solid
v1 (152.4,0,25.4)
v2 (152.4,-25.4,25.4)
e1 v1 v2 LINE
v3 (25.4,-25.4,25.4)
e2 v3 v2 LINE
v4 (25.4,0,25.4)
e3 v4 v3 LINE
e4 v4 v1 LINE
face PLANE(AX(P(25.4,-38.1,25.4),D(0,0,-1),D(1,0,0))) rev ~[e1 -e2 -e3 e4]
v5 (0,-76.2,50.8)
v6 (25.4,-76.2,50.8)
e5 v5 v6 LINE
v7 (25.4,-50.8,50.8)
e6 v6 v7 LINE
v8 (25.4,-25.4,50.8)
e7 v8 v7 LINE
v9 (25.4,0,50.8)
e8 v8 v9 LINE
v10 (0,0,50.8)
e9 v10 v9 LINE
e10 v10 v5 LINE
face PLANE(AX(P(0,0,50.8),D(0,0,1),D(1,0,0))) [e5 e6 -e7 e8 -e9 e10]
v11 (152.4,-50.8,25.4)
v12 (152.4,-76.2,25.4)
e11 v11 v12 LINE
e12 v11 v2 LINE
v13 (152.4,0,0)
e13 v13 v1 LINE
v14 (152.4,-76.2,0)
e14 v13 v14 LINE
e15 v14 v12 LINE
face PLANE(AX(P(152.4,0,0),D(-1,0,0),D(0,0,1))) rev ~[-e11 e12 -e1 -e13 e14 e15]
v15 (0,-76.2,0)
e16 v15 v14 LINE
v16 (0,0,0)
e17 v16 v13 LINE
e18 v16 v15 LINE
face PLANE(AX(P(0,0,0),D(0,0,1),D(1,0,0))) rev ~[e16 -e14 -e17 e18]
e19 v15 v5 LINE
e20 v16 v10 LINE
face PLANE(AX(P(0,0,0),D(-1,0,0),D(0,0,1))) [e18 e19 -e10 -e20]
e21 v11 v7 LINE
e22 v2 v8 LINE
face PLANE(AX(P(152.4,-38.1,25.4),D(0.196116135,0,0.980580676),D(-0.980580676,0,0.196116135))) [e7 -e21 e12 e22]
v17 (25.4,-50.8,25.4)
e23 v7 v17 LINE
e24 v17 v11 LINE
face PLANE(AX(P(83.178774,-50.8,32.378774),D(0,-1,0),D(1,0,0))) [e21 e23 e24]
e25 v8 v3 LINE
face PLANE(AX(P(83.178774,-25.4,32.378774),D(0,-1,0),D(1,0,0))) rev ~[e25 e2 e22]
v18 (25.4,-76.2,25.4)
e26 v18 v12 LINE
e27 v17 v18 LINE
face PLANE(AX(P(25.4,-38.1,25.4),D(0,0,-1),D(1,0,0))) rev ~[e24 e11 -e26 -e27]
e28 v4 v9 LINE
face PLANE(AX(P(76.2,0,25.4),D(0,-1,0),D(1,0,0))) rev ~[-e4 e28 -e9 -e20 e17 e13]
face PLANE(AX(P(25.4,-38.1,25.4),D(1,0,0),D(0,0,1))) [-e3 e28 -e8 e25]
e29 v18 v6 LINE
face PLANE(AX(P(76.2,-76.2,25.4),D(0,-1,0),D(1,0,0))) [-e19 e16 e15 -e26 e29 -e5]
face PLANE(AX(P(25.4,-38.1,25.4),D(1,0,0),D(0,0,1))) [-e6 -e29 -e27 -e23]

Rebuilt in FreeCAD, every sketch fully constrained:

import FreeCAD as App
import Part
import Sketcher
Q = App.Units.Quantity

doc = App.newDocument("Part")
params = doc.addObject("Spreadsheet::Sheet", "Params")
for row, (alias, value) in enumerate([
    ("sketch1_width", "6 in"),
    ("sketch1_height", "2 in"),
    ("pad1_length", "3 in"),
    ("sketch2_width", "5 in"),
    ("sketch2_height", "1 in"),
    ("pocket1_length", "3 in"),
    ("sketch3_width", "5 in"),
    ("sketch3_height", "1 in"),
    ("pad2_length", "1 in"),
], start=1):
    params.set(f"A{row}", alias)
    params.set(f"B{row}", "=" + value)
    params.setAlias(f"B{row}", alias)

body = doc.addObject("PartDesign::Body", "Body")

sketch1 = body.newObject("Sketcher::SketchObject", "Sketch")
sketch1.AttachmentSupport = (doc.getObject("XZ_Plane"), [""])
sketch1.MapMode = "FlatFace"
sketch1.addGeometry([
    Part.LineSegment(App.Vector(0, 51, 0), App.Vector(0, 0, 0)),
    Part.LineSegment(App.Vector(0, 0, 0), App.Vector(152, 0, 0)),
    Part.LineSegment(App.Vector(152, 0, 0), App.Vector(152, 51, 0)),
    Part.LineSegment(App.Vector(152, 51, 0), App.Vector(0, 51, 0)),
], False)
sketch1.addConstraint([
    Sketcher.Constraint("Coincident", 0, 2, 1, 1),
    Sketcher.Constraint("Coincident", 1, 2, 2, 1),
    Sketcher.Constraint("Coincident", 2, 2, 3, 1),
    Sketcher.Constraint("Coincident", 3, 2, 0, 1),
    Sketcher.Constraint("Vertical", 0),
    Sketcher.Constraint("Horizontal", 1),
    Sketcher.Constraint("Vertical", 2),
    Sketcher.Constraint("Horizontal", 3),
    Sketcher.Constraint("Coincident", 0, 2, -1, 1),
    Sketcher.Constraint("DistanceX", 1, 1, 1, 2, Q("6 in")),
    Sketcher.Constraint("DistanceY", 0, 2, 0, 1, Q("2 in")),
])
sketch1.setExpression("Constraints[9]", "Params.sketch1_width")
sketch1.setExpression("Constraints[10]", "Params.sketch1_height")
pad1 = body.newObject("PartDesign::Pad", "Pad")
pad1.Profile = sketch1
pad1.setExpression("Length", "Params.pad1_length")

sketch2 = body.newObject("Sketcher::SketchObject", "Sketch001")
sketch2.AttachmentSupport = (doc.getObject("XZ_Plane"), [""])
sketch2.MapMode = "FlatFace"
sketch2.AttachmentOffset = App.Placement(App.Vector(0, 0, 1.5 * 25.4), App.Rotation())
sketch2.addGeometry([
    Part.LineSegment(App.Vector(25, 51, 0), App.Vector(25, 25, 0)),
    Part.LineSegment(App.Vector(25, 25, 0), App.Vector(152, 25, 0)),
    Part.LineSegment(App.Vector(152, 25, 0), App.Vector(152, 51, 0)),
    Part.LineSegment(App.Vector(152, 51, 0), App.Vector(25, 51, 0)),
], False)
sketch2.addConstraint([
    Sketcher.Constraint("Coincident", 0, 2, 1, 1),
    Sketcher.Constraint("Coincident", 1, 2, 2, 1),
    Sketcher.Constraint("Coincident", 2, 2, 3, 1),
    Sketcher.Constraint("Coincident", 3, 2, 0, 1),
    Sketcher.Constraint("Vertical", 0),
    Sketcher.Constraint("Horizontal", 1),
    Sketcher.Constraint("Vertical", 2),
    Sketcher.Constraint("Horizontal", 3),
    Sketcher.Constraint("DistanceX", 1, 1, 1, 2, Q("5 in")),
    Sketcher.Constraint("DistanceY", 0, 2, 0, 1, Q("1 in")),
    Sketcher.Constraint("DistanceX", -1, 1, 0, 2, Q("1 in")),
    Sketcher.Constraint("DistanceY", -1, 1, 0, 2, Q("1 in")),
])
sketch2.setExpression("Constraints[8]", "Params.sketch2_width")
sketch2.setExpression("Constraints[9]", "Params.sketch2_height")
pocket1 = body.newObject("PartDesign::Pocket", "Pocket")
pocket1.Profile = sketch2
pocket1.setExpression("Length", "Params.pocket1_length")
pocket1.Midplane = True

sketch3 = body.newObject("Sketcher::SketchObject", "Sketch002")
sketch3.AttachmentSupport = (doc.getObject("XZ_Plane"), [""])
sketch3.MapMode = "FlatFace"
sketch3.AttachmentOffset = App.Placement(App.Vector(0, 0, 1.5 * 25.4), App.Rotation())
sketch3.addGeometry([
    Part.LineSegment(App.Vector(152, 25, 0), App.Vector(25, 51, 0)),
    Part.LineSegment(App.Vector(25, 51, 0), App.Vector(25, 25, 0)),
    Part.LineSegment(App.Vector(25, 25, 0), App.Vector(152, 25, 0)),
], False)
sketch3.addConstraint([
    Sketcher.Constraint("Coincident", 0, 2, 1, 1),
    Sketcher.Constraint("Coincident", 1, 2, 2, 1),
    Sketcher.Constraint("Coincident", 2, 2, 0, 1),
    Sketcher.Constraint("Vertical", 1),
    Sketcher.Constraint("Horizontal", 2),
    Sketcher.Constraint("DistanceX", 2, 1, 2, 2, Q("5 in")),
    Sketcher.Constraint("DistanceY", 1, 2, 1, 1, Q("1 in")),
    Sketcher.Constraint("DistanceX", -1, 1, 0, 2, Q("1 in")),
    Sketcher.Constraint("DistanceY", -1, 1, 0, 2, Q("2 in")),
])
sketch3.setExpression("Constraints[5]", "Params.sketch3_width")
sketch3.setExpression("Constraints[6]", "Params.sketch3_height")
pad2 = body.newObject("PartDesign::Pad", "Pad001")
pad2.Profile = sketch3
pad2.setExpression("Length", "Params.pad2_length")
pad2.Midplane = True

doc.recompute()
